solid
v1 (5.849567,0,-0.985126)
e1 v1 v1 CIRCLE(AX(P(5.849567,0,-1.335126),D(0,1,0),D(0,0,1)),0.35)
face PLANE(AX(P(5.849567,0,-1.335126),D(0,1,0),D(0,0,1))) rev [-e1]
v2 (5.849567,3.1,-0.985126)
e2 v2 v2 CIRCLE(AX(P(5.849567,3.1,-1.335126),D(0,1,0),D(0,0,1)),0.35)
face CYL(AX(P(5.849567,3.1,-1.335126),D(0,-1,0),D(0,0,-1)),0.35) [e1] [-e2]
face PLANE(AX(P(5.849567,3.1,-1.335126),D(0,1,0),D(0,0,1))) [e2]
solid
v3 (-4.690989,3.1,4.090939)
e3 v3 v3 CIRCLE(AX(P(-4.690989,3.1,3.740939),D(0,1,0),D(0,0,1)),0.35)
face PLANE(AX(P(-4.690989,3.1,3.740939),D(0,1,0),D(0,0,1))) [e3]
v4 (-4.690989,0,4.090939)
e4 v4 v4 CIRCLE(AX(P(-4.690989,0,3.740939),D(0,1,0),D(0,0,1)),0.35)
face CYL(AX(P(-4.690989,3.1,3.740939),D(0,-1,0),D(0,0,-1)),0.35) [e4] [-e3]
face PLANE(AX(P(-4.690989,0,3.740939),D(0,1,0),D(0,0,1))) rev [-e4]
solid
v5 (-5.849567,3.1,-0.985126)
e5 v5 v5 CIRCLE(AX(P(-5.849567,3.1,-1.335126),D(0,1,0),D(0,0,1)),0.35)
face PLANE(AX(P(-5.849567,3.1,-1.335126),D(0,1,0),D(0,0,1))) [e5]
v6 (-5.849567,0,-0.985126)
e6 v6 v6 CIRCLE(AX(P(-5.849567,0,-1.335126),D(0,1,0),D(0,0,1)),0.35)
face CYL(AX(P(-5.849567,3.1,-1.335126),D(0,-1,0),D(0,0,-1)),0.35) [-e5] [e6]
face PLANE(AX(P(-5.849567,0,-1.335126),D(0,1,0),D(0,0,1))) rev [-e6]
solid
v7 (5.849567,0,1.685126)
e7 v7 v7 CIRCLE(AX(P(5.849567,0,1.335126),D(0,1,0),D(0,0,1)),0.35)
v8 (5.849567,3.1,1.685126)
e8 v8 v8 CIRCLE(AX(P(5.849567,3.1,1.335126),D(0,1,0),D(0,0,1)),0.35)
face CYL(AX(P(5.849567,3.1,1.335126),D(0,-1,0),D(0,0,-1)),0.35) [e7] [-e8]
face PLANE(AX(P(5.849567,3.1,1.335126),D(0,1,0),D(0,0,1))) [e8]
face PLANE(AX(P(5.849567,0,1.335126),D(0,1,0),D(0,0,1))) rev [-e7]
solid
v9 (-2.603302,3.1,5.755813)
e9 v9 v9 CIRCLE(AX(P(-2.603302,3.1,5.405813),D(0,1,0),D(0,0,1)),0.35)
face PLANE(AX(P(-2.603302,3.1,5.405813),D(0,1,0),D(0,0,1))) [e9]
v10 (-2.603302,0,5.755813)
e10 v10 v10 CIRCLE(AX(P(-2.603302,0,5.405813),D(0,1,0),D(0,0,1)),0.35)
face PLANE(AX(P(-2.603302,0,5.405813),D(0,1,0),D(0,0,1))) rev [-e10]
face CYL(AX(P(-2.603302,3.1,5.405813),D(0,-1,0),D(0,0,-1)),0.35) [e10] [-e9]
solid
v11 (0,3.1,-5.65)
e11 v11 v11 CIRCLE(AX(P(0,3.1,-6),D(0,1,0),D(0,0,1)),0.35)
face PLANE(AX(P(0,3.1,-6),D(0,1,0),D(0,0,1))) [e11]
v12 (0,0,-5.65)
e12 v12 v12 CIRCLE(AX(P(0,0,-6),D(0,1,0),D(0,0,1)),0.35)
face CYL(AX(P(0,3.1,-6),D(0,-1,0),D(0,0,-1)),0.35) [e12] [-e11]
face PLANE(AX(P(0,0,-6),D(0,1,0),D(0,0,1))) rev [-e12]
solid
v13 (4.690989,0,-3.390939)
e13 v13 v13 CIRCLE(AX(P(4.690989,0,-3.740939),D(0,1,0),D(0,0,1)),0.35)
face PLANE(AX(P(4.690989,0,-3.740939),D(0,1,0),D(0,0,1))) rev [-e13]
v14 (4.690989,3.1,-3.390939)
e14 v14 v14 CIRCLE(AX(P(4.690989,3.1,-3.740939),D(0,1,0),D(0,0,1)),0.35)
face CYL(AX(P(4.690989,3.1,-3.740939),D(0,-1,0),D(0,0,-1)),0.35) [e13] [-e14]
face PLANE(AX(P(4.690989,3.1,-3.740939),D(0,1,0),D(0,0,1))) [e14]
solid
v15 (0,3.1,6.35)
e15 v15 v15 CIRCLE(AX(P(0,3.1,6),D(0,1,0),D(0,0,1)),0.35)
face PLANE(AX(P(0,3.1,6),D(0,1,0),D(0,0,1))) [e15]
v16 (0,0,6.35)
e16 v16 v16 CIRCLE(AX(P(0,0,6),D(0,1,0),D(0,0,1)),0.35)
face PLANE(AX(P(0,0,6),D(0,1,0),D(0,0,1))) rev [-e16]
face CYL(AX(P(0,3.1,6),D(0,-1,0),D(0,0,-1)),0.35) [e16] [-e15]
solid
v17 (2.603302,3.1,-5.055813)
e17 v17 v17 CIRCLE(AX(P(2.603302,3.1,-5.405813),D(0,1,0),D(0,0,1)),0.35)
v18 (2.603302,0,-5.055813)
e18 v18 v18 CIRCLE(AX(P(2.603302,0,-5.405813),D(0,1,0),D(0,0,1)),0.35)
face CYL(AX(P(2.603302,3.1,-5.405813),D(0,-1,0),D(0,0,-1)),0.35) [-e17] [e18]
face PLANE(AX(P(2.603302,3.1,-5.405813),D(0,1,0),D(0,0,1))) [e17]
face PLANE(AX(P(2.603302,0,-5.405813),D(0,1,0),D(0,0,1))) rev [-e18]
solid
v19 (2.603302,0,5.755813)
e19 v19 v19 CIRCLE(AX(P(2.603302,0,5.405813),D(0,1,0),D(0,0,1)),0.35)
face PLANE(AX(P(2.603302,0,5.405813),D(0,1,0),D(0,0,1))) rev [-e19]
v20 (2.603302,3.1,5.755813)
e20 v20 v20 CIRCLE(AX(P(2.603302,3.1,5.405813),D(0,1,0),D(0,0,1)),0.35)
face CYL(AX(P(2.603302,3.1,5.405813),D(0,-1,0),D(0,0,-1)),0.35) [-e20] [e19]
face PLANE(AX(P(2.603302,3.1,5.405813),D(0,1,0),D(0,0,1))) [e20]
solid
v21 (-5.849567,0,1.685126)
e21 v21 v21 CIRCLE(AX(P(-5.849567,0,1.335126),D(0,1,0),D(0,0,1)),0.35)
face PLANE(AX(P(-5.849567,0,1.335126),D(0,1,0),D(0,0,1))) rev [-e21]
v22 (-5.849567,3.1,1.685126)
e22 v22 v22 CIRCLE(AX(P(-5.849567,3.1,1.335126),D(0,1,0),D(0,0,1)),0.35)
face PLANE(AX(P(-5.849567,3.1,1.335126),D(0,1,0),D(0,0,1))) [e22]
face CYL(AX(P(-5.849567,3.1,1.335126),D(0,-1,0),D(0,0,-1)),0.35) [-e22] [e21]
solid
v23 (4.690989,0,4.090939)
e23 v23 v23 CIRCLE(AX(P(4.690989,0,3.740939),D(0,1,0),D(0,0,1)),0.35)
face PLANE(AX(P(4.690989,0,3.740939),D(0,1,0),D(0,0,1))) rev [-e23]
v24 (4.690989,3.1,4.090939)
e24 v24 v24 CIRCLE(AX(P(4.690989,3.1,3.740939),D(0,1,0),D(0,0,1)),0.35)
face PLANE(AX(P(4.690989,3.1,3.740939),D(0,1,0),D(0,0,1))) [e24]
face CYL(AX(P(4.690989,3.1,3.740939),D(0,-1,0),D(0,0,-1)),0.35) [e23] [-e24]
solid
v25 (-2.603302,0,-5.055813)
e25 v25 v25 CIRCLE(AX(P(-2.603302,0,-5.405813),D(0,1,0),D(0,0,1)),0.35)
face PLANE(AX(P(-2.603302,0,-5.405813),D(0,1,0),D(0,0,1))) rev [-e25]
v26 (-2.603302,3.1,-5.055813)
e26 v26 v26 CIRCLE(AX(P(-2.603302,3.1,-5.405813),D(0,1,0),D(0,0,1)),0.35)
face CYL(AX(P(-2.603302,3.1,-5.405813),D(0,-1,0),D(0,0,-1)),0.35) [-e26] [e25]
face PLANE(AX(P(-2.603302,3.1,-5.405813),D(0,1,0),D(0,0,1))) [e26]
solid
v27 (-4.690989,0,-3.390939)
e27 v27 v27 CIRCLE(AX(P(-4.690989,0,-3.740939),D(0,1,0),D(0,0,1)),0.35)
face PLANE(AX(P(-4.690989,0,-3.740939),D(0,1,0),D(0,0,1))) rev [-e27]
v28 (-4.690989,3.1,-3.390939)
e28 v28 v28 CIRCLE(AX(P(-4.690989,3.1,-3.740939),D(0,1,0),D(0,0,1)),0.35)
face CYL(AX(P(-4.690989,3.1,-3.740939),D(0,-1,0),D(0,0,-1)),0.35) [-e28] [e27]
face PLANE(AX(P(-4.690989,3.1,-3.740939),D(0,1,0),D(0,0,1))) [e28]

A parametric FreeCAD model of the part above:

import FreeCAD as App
import Part
import Sketcher
Q = App.Units.Quantity

doc = App.newDocument("Part")
body = doc.addObject("PartDesign::Body", "Body")

# Sketch on XZ plane
sketch1 = body.newObject("Sketcher::SketchObject", "Sketch")
sketch1.AttachmentSupport = (doc.getObject("XZ_Plane"), [""])
sketch1.MapMode = "FlatFace"
sketch1.addGeometry(Part.Circle(App.Vector(0, 6, 0), App.Vector(0, 0, 1), 0.35), False)
sketch1.addConstraint(Sketcher.Constraint("PointOnObject", 0, 3, -2))
sketch1.addConstraint(Sketcher.Constraint("Diameter", 0, Q("0.7 mm")))
sketch1.addConstraint(Sketcher.Constraint("DistanceY", -1, 1, 0, 3, Q("6 mm")))
pad1 = body.newObject("PartDesign::Pad", "Pad")
pad1.Profile = sketch1
pad1.Length = 3.1
pad1.Reversed = True
body2 = doc.addObject("PartDesign::Body", "Body001")

# Sketch on XZ plane
sketch2 = body2.newObject("Sketcher::SketchObject", "Sketch001")
sketch2.AttachmentSupport = (doc.getObject("XZ_Plane001"), [""])
sketch2.MapMode = "FlatFace"
sketch2.addGeometry(Part.Circle(App.Vector(-2.6, 5.41, 0), App.Vector(0, 0, 1), 0.35), False)
sketch2.addConstraint(Sketcher.Constraint("Diameter", 0, Q("0.7 mm")))
sketch2.addConstraint(Sketcher.Constraint("DistanceX", 0, 3, -1, 1, Q("2.603302 mm")))
sketch2.addConstraint(Sketcher.Constraint("DistanceY", -1, 1, 0, 3, Q("5.405813 mm")))
pad2 = body2.newObject("PartDesign::Pad", "Pad001")
pad2.Profile = sketch2
pad2.Length = 3.1
pad2.Reversed = True
body3 = doc.addObject("PartDesign::Body", "Body002")

# Sketch on XZ plane
sketch3 = body3.newObject("Sketcher::SketchObject", "Sketch002")
sketch3.AttachmentSupport = (doc.getObject("XZ_Plane002"), [""])
sketch3.MapMode = "FlatFace"
sketch3.addGeometry(Part.Circle(App.Vector(-4.69, 3.74, 0), App.Vector(0, 0, 1), 0.35), False)
sketch3.addConstraint(Sketcher.Constraint("Diameter", 0, Q("0.7 mm")))
sketch3.addConstraint(Sketcher.Constraint("DistanceX", 0, 3, -1, 1, Q("4.690989 mm")))
sketch3.addConstraint(Sketcher.Constraint("DistanceY", -1, 1, 0, 3, Q("3.740939 mm")))
pad3 = body3.newObject("PartDesign::Pad", "Pad002")
pad3.Profile = sketch3
pad3.Length = 3.1
pad3.Reversed = True
body4 = doc.addObject("PartDesign::Body", "Body003")

# Sketch on XZ plane
sketch4 = body4.newObject("Sketcher::SketchObject", "Sketch003")
sketch4.AttachmentSupport = (doc.getObject("XZ_Plane003"), [""])
sketch4.MapMode = "FlatFace"
sketch4.addGeometry(Part.Circle(App.Vector(-5.85, 1.34, 0), App.Vector(0, 0, 1), 0.35), False)
sketch4.addConstraint(Sketcher.Constraint("Diameter", 0, Q("0.7 mm")))
sketch4.addConstraint(Sketcher.Constraint("DistanceX", 0, 3, -1, 1, Q("5.849567 mm")))
sketch4.addConstraint(Sketcher.Constraint("DistanceY", -1, 1, 0, 3, Q("1.335126 mm")))
pad4 = body4.newObject("PartDesign::Pad", "Pad003")
pad4.Profile = sketch4
pad4.Length = 3.1
pad4.Reversed = True
body5 = doc.addObject("PartDesign::Body", "Body004")

# Sketch on XZ plane
sketch5 = body5.newObject("Sketcher::SketchObject", "Sketch004")
sketch5.AttachmentSupport = (doc.getObject("XZ_Plane004"), [""])
sketch5.MapMode = "FlatFace"
sketch5.addGeometry(Part.Circle(App.Vector(-5.85, -1.34, 0), App.Vector(0, 0, 1), 0.35), False)
sketch5.addConstraint(Sketcher.Constraint("Diameter", 0, Q("0.7 mm")))
sketch5.addConstraint(Sketcher.Constraint("DistanceX", 0, 3, -1, 1, Q("5.849567 mm")))
sketch5.addConstraint(Sketcher.Constraint("DistanceY", 0, 3, -1, 1, Q("1.335126 mm")))
pad5 = body5.newObject("PartDesign::Pad", "Pad004")
pad5.Profile = sketch5
pad5.Length = 3.1
pad5.Reversed = True
body6 = doc.addObject("PartDesign::Body", "Body005")

# Sketch on XZ plane
sketch6 = body6.newObject("Sketcher::SketchObject", "Sketch005")
sketch6.AttachmentSupport = (doc.getObject("XZ_Plane005"), [""])
sketch6.MapMode = "FlatFace"
sketch6.addGeometry(Part.Circle(App.Vector(-4.69, -3.74, 0), App.Vector(0, 0, 1), 0.35), False)
sketch6.addConstraint(Sketcher.Constraint("Diameter", 0, Q("0.7 mm")))
sketch6.addConstraint(Sketcher.Constraint("DistanceX", 0, 3, -1, 1, Q("4.690989 mm")))
sketch6.addConstraint(Sketcher.Constraint("DistanceY", 0, 3, -1, 1, Q("3.740939 mm")))
pad6 = body6.newObject("PartDesign::Pad", "Pad005")
pad6.Profile = sketch6
pad6.Length = 3.1
pad6.Reversed = True
body7 = doc.addObject("PartDesign::Body", "Body006")

# Sketch on XZ plane
sketch7 = body7.newObject("Sketcher::SketchObject", "Sketch006")
sketch7.AttachmentSupport = (doc.getObject("XZ_Plane006"), [""])
sketch7.MapMode = "FlatFace"
sketch7.addGeometry(Part.Circle(App.Vector(-2.6, -5.41, 0), App.Vector(0, 0, 1), 0.35), False)
sketch7.addConstraint(Sketcher.Constraint("Diameter", 0, Q("0.7 mm")))
sketch7.addConstraint(Sketcher.Constraint("DistanceX", 0, 3, -1, 1, Q("2.603302 mm")))
sketch7.addConstraint(Sketcher.Constraint("DistanceY", 0, 3, -1, 1, Q("5.405813 mm")))
pad7 = body7.newObject("PartDesign::Pad", "Pad006")
pad7.Profile = sketch7
pad7.Length = 3.1
pad7.Reversed = True
body8 = doc.addObject("PartDesign::Body", "Body007")

# Sketch on XZ plane
sketch8 = body8.newObject("Sketcher::SketchObject", "Sketch007")
sketch8.AttachmentSupport = (doc.getObject("XZ_Plane007"), [""])
sketch8.MapMode = "FlatFace"
sketch8.addGeometry(Part.Circle(App.Vector(0, -6, 0), App.Vector(0, 0, 1), 0.35), False)
sketch8.addConstraint(Sketcher.Constraint("PointOnObject", 0, 3, -2))
sketch8.addConstraint(Sketcher.Constraint("Diameter", 0, Q("0.7 mm")))
sketch8.addConstraint(Sketcher.Constraint("DistanceY", 0, 3, -1, 1, Q("6 mm")))
pad8 = body8.newObject("PartDesign::Pad", "Pad007")
pad8.Profile = sketch8
pad8.Length = 3.1
pad8.Reversed = True
body9 = doc.addObject("PartDesign::Body", "Body008")

# Sketch on XZ plane
sketch9 = body9.newObject("Sketcher::SketchObject", "Sketch008")
sketch9.AttachmentSupport = (doc.getObject("XZ_Plane008"), [""])
sketch9.MapMode = "FlatFace"
sketch9.addGeometry(Part.Circle(App.Vector(2.6, -5.41, 0), App.Vector(0, 0, 1), 0.35), False)
sketch9.addConstraint(Sketcher.Constraint("Diameter", 0, Q("0.7 mm")))
sketch9.addConstraint(Sketcher.Constraint("DistanceX", -1, 1, 0, 3, Q("2.603302 mm")))
sketch9.addConstraint(Sketcher.Constraint("DistanceY", 0, 3, -1, 1, Q("5.405813 mm")))
pad9 = body9.newObject("PartDesign::Pad", "Pad008")
pad9.Profile = sketch9
pad9.Length = 3.1
pad9.Reversed = True
body10 = doc.addObject("PartDesign::Body", "Body009")

# Sketch on XZ plane
sketch10 = body10.newObject("Sketcher::SketchObject", "Sketch009")
sketch10.AttachmentSupport = (doc.getObject("XZ_Plane009"), [""])
sketch10.MapMode = "FlatFace"
sketch10.addGeometry(Part.Circle(App.Vector(4.69, -3.74, 0), App.Vector(0, 0, 1), 0.35), False)
sketch10.addConstraint(Sketcher.Constraint("Diameter", 0, Q("0.7 mm")))
sketch10.addConstraint(Sketcher.Constraint("DistanceX", -1, 1, 0, 3, Q("4.690989 mm")))
sketch10.addConstraint(Sketcher.Constraint("DistanceY", 0, 3, -1, 1, Q("3.740939 mm")))
pad10 = body10.newObject("PartDesign::Pad", "Pad009")
pad10.Profile = sketch10
pad10.Length = 3.1
pad10.Reversed = True
body11 = doc.addObject("PartDesign::Body", "Body010")

# Sketch on XZ plane
sketch11 = body11.newObject("Sketcher::SketchObject", "Sketch010")
sketch11.AttachmentSupport = (doc.getObject("XZ_Plane010"), [""])
sketch11.MapMode = "FlatFace"
sketch11.addGeometry(Part.Circle(App.Vector(5.85, -1.34, 0), App.Vector(0, 0, 1), 0.35), False)
sketch11.addConstraint(Sketcher.Constraint("Diameter", 0, Q("0.7 mm")))
sketch11.addConstraint(Sketcher.Constraint("DistanceX", -1, 1, 0, 3, Q("5.849567 mm")))
sketch11.addConstraint(Sketcher.Constraint("DistanceY", 0, 3, -1, 1, Q("1.335126 mm")))
pad11 = body11.newObject("PartDesign::Pad", "Pad010")
pad11.Profile = sketch11
pad11.Length = 3.1
pad11.Reversed = True
body12 = doc.addObject("PartDesign::Body", "Body011")

# Sketch on XZ plane
sketch12 = body12.newObject("Sketcher::SketchObject", "Sketch011")
sketch12.AttachmentSupport = (doc.getObject("XZ_Plane011"), [""])
sketch12.MapMode = "FlatFace"
sketch12.addGeometry(Part.Circle(App.Vector(5.85, 1.34, 0), App.Vector(0, 0, 1), 0.35), False)
sketch12.addConstraint(Sketcher.Constraint("Diameter", 0, Q("0.7 mm")))
sketch12.addConstraint(Sketcher.Constraint("DistanceX", -1, 1, 0, 3, Q("5.849567 mm")))
sketch12.addConstraint(Sketcher.Constraint("DistanceY", -1, 1, 0, 3, Q("1.335126 mm")))
pad12 = body12.newObject("PartDesign::Pad", "Pad011")
pad12.Profile = sketch12
pad12.Length = 3.1
pad12.Reversed = True
body13 = doc.addObject("PartDesign::Body", "Body012")

# Sketch on XZ plane
sketch13 = body13.newObject("Sketcher::SketchObject", "Sketch012")
sketch13.AttachmentSupport = (doc.getObject("XZ_Plane012"), [""])
sketch13.MapMode = "FlatFace"
sketch13.addGeometry(Part.Circle(App.Vector(4.69, 3.74, 0), App.Vector(0, 0, 1), 0.35), False)
sketch13.addConstraint(Sketcher.Constraint("Diameter", 0, Q("0.7 mm")))
sketch13.addConstraint(Sketcher.Constraint("DistanceX", -1, 1, 0, 3, Q("4.690989 mm")))
sketch13.addConstraint(Sketcher.Constraint("DistanceY", -1, 1, 0, 3, Q("3.740939 mm")))
pad13 = body13.newObject("PartDesign::Pad", "Pad012")
pad13.Profile = sketch13
pad13.Length = 3.1
pad13.Reversed = True
body14 = doc.addObject("PartDesign::Body", "Body013")

# Sketch on XZ plane
sketch14 = body14.newObject("Sketcher::SketchObject", "Sketch013")
sketch14.AttachmentSupport = (doc.getObject("XZ_Plane013"), [""])
sketch14.MapMode = "FlatFace"
sketch14.addGeometry(Part.Circle(App.Vector(2.6, 5.41, 0), App.Vector(0, 0, 1), 0.35), False)
sketch14.addConstraint(Sketcher.Constraint("Diameter", 0, Q("0.7 mm")))
sketch14.addConstraint(Sketcher.Constraint("DistanceX", -1, 1, 0, 3, Q("2.603302 mm")))
sketch14.addConstraint(Sketcher.Constraint("DistanceY", -1, 1, 0, 3, Q("5.405813 mm")))
pad14 = body14.newObject("PartDesign::Pad", "Pad013")
pad14.Profile = sketch14
pad14.Length = 3.1
pad14.Reversed = True

doc.recompute()
